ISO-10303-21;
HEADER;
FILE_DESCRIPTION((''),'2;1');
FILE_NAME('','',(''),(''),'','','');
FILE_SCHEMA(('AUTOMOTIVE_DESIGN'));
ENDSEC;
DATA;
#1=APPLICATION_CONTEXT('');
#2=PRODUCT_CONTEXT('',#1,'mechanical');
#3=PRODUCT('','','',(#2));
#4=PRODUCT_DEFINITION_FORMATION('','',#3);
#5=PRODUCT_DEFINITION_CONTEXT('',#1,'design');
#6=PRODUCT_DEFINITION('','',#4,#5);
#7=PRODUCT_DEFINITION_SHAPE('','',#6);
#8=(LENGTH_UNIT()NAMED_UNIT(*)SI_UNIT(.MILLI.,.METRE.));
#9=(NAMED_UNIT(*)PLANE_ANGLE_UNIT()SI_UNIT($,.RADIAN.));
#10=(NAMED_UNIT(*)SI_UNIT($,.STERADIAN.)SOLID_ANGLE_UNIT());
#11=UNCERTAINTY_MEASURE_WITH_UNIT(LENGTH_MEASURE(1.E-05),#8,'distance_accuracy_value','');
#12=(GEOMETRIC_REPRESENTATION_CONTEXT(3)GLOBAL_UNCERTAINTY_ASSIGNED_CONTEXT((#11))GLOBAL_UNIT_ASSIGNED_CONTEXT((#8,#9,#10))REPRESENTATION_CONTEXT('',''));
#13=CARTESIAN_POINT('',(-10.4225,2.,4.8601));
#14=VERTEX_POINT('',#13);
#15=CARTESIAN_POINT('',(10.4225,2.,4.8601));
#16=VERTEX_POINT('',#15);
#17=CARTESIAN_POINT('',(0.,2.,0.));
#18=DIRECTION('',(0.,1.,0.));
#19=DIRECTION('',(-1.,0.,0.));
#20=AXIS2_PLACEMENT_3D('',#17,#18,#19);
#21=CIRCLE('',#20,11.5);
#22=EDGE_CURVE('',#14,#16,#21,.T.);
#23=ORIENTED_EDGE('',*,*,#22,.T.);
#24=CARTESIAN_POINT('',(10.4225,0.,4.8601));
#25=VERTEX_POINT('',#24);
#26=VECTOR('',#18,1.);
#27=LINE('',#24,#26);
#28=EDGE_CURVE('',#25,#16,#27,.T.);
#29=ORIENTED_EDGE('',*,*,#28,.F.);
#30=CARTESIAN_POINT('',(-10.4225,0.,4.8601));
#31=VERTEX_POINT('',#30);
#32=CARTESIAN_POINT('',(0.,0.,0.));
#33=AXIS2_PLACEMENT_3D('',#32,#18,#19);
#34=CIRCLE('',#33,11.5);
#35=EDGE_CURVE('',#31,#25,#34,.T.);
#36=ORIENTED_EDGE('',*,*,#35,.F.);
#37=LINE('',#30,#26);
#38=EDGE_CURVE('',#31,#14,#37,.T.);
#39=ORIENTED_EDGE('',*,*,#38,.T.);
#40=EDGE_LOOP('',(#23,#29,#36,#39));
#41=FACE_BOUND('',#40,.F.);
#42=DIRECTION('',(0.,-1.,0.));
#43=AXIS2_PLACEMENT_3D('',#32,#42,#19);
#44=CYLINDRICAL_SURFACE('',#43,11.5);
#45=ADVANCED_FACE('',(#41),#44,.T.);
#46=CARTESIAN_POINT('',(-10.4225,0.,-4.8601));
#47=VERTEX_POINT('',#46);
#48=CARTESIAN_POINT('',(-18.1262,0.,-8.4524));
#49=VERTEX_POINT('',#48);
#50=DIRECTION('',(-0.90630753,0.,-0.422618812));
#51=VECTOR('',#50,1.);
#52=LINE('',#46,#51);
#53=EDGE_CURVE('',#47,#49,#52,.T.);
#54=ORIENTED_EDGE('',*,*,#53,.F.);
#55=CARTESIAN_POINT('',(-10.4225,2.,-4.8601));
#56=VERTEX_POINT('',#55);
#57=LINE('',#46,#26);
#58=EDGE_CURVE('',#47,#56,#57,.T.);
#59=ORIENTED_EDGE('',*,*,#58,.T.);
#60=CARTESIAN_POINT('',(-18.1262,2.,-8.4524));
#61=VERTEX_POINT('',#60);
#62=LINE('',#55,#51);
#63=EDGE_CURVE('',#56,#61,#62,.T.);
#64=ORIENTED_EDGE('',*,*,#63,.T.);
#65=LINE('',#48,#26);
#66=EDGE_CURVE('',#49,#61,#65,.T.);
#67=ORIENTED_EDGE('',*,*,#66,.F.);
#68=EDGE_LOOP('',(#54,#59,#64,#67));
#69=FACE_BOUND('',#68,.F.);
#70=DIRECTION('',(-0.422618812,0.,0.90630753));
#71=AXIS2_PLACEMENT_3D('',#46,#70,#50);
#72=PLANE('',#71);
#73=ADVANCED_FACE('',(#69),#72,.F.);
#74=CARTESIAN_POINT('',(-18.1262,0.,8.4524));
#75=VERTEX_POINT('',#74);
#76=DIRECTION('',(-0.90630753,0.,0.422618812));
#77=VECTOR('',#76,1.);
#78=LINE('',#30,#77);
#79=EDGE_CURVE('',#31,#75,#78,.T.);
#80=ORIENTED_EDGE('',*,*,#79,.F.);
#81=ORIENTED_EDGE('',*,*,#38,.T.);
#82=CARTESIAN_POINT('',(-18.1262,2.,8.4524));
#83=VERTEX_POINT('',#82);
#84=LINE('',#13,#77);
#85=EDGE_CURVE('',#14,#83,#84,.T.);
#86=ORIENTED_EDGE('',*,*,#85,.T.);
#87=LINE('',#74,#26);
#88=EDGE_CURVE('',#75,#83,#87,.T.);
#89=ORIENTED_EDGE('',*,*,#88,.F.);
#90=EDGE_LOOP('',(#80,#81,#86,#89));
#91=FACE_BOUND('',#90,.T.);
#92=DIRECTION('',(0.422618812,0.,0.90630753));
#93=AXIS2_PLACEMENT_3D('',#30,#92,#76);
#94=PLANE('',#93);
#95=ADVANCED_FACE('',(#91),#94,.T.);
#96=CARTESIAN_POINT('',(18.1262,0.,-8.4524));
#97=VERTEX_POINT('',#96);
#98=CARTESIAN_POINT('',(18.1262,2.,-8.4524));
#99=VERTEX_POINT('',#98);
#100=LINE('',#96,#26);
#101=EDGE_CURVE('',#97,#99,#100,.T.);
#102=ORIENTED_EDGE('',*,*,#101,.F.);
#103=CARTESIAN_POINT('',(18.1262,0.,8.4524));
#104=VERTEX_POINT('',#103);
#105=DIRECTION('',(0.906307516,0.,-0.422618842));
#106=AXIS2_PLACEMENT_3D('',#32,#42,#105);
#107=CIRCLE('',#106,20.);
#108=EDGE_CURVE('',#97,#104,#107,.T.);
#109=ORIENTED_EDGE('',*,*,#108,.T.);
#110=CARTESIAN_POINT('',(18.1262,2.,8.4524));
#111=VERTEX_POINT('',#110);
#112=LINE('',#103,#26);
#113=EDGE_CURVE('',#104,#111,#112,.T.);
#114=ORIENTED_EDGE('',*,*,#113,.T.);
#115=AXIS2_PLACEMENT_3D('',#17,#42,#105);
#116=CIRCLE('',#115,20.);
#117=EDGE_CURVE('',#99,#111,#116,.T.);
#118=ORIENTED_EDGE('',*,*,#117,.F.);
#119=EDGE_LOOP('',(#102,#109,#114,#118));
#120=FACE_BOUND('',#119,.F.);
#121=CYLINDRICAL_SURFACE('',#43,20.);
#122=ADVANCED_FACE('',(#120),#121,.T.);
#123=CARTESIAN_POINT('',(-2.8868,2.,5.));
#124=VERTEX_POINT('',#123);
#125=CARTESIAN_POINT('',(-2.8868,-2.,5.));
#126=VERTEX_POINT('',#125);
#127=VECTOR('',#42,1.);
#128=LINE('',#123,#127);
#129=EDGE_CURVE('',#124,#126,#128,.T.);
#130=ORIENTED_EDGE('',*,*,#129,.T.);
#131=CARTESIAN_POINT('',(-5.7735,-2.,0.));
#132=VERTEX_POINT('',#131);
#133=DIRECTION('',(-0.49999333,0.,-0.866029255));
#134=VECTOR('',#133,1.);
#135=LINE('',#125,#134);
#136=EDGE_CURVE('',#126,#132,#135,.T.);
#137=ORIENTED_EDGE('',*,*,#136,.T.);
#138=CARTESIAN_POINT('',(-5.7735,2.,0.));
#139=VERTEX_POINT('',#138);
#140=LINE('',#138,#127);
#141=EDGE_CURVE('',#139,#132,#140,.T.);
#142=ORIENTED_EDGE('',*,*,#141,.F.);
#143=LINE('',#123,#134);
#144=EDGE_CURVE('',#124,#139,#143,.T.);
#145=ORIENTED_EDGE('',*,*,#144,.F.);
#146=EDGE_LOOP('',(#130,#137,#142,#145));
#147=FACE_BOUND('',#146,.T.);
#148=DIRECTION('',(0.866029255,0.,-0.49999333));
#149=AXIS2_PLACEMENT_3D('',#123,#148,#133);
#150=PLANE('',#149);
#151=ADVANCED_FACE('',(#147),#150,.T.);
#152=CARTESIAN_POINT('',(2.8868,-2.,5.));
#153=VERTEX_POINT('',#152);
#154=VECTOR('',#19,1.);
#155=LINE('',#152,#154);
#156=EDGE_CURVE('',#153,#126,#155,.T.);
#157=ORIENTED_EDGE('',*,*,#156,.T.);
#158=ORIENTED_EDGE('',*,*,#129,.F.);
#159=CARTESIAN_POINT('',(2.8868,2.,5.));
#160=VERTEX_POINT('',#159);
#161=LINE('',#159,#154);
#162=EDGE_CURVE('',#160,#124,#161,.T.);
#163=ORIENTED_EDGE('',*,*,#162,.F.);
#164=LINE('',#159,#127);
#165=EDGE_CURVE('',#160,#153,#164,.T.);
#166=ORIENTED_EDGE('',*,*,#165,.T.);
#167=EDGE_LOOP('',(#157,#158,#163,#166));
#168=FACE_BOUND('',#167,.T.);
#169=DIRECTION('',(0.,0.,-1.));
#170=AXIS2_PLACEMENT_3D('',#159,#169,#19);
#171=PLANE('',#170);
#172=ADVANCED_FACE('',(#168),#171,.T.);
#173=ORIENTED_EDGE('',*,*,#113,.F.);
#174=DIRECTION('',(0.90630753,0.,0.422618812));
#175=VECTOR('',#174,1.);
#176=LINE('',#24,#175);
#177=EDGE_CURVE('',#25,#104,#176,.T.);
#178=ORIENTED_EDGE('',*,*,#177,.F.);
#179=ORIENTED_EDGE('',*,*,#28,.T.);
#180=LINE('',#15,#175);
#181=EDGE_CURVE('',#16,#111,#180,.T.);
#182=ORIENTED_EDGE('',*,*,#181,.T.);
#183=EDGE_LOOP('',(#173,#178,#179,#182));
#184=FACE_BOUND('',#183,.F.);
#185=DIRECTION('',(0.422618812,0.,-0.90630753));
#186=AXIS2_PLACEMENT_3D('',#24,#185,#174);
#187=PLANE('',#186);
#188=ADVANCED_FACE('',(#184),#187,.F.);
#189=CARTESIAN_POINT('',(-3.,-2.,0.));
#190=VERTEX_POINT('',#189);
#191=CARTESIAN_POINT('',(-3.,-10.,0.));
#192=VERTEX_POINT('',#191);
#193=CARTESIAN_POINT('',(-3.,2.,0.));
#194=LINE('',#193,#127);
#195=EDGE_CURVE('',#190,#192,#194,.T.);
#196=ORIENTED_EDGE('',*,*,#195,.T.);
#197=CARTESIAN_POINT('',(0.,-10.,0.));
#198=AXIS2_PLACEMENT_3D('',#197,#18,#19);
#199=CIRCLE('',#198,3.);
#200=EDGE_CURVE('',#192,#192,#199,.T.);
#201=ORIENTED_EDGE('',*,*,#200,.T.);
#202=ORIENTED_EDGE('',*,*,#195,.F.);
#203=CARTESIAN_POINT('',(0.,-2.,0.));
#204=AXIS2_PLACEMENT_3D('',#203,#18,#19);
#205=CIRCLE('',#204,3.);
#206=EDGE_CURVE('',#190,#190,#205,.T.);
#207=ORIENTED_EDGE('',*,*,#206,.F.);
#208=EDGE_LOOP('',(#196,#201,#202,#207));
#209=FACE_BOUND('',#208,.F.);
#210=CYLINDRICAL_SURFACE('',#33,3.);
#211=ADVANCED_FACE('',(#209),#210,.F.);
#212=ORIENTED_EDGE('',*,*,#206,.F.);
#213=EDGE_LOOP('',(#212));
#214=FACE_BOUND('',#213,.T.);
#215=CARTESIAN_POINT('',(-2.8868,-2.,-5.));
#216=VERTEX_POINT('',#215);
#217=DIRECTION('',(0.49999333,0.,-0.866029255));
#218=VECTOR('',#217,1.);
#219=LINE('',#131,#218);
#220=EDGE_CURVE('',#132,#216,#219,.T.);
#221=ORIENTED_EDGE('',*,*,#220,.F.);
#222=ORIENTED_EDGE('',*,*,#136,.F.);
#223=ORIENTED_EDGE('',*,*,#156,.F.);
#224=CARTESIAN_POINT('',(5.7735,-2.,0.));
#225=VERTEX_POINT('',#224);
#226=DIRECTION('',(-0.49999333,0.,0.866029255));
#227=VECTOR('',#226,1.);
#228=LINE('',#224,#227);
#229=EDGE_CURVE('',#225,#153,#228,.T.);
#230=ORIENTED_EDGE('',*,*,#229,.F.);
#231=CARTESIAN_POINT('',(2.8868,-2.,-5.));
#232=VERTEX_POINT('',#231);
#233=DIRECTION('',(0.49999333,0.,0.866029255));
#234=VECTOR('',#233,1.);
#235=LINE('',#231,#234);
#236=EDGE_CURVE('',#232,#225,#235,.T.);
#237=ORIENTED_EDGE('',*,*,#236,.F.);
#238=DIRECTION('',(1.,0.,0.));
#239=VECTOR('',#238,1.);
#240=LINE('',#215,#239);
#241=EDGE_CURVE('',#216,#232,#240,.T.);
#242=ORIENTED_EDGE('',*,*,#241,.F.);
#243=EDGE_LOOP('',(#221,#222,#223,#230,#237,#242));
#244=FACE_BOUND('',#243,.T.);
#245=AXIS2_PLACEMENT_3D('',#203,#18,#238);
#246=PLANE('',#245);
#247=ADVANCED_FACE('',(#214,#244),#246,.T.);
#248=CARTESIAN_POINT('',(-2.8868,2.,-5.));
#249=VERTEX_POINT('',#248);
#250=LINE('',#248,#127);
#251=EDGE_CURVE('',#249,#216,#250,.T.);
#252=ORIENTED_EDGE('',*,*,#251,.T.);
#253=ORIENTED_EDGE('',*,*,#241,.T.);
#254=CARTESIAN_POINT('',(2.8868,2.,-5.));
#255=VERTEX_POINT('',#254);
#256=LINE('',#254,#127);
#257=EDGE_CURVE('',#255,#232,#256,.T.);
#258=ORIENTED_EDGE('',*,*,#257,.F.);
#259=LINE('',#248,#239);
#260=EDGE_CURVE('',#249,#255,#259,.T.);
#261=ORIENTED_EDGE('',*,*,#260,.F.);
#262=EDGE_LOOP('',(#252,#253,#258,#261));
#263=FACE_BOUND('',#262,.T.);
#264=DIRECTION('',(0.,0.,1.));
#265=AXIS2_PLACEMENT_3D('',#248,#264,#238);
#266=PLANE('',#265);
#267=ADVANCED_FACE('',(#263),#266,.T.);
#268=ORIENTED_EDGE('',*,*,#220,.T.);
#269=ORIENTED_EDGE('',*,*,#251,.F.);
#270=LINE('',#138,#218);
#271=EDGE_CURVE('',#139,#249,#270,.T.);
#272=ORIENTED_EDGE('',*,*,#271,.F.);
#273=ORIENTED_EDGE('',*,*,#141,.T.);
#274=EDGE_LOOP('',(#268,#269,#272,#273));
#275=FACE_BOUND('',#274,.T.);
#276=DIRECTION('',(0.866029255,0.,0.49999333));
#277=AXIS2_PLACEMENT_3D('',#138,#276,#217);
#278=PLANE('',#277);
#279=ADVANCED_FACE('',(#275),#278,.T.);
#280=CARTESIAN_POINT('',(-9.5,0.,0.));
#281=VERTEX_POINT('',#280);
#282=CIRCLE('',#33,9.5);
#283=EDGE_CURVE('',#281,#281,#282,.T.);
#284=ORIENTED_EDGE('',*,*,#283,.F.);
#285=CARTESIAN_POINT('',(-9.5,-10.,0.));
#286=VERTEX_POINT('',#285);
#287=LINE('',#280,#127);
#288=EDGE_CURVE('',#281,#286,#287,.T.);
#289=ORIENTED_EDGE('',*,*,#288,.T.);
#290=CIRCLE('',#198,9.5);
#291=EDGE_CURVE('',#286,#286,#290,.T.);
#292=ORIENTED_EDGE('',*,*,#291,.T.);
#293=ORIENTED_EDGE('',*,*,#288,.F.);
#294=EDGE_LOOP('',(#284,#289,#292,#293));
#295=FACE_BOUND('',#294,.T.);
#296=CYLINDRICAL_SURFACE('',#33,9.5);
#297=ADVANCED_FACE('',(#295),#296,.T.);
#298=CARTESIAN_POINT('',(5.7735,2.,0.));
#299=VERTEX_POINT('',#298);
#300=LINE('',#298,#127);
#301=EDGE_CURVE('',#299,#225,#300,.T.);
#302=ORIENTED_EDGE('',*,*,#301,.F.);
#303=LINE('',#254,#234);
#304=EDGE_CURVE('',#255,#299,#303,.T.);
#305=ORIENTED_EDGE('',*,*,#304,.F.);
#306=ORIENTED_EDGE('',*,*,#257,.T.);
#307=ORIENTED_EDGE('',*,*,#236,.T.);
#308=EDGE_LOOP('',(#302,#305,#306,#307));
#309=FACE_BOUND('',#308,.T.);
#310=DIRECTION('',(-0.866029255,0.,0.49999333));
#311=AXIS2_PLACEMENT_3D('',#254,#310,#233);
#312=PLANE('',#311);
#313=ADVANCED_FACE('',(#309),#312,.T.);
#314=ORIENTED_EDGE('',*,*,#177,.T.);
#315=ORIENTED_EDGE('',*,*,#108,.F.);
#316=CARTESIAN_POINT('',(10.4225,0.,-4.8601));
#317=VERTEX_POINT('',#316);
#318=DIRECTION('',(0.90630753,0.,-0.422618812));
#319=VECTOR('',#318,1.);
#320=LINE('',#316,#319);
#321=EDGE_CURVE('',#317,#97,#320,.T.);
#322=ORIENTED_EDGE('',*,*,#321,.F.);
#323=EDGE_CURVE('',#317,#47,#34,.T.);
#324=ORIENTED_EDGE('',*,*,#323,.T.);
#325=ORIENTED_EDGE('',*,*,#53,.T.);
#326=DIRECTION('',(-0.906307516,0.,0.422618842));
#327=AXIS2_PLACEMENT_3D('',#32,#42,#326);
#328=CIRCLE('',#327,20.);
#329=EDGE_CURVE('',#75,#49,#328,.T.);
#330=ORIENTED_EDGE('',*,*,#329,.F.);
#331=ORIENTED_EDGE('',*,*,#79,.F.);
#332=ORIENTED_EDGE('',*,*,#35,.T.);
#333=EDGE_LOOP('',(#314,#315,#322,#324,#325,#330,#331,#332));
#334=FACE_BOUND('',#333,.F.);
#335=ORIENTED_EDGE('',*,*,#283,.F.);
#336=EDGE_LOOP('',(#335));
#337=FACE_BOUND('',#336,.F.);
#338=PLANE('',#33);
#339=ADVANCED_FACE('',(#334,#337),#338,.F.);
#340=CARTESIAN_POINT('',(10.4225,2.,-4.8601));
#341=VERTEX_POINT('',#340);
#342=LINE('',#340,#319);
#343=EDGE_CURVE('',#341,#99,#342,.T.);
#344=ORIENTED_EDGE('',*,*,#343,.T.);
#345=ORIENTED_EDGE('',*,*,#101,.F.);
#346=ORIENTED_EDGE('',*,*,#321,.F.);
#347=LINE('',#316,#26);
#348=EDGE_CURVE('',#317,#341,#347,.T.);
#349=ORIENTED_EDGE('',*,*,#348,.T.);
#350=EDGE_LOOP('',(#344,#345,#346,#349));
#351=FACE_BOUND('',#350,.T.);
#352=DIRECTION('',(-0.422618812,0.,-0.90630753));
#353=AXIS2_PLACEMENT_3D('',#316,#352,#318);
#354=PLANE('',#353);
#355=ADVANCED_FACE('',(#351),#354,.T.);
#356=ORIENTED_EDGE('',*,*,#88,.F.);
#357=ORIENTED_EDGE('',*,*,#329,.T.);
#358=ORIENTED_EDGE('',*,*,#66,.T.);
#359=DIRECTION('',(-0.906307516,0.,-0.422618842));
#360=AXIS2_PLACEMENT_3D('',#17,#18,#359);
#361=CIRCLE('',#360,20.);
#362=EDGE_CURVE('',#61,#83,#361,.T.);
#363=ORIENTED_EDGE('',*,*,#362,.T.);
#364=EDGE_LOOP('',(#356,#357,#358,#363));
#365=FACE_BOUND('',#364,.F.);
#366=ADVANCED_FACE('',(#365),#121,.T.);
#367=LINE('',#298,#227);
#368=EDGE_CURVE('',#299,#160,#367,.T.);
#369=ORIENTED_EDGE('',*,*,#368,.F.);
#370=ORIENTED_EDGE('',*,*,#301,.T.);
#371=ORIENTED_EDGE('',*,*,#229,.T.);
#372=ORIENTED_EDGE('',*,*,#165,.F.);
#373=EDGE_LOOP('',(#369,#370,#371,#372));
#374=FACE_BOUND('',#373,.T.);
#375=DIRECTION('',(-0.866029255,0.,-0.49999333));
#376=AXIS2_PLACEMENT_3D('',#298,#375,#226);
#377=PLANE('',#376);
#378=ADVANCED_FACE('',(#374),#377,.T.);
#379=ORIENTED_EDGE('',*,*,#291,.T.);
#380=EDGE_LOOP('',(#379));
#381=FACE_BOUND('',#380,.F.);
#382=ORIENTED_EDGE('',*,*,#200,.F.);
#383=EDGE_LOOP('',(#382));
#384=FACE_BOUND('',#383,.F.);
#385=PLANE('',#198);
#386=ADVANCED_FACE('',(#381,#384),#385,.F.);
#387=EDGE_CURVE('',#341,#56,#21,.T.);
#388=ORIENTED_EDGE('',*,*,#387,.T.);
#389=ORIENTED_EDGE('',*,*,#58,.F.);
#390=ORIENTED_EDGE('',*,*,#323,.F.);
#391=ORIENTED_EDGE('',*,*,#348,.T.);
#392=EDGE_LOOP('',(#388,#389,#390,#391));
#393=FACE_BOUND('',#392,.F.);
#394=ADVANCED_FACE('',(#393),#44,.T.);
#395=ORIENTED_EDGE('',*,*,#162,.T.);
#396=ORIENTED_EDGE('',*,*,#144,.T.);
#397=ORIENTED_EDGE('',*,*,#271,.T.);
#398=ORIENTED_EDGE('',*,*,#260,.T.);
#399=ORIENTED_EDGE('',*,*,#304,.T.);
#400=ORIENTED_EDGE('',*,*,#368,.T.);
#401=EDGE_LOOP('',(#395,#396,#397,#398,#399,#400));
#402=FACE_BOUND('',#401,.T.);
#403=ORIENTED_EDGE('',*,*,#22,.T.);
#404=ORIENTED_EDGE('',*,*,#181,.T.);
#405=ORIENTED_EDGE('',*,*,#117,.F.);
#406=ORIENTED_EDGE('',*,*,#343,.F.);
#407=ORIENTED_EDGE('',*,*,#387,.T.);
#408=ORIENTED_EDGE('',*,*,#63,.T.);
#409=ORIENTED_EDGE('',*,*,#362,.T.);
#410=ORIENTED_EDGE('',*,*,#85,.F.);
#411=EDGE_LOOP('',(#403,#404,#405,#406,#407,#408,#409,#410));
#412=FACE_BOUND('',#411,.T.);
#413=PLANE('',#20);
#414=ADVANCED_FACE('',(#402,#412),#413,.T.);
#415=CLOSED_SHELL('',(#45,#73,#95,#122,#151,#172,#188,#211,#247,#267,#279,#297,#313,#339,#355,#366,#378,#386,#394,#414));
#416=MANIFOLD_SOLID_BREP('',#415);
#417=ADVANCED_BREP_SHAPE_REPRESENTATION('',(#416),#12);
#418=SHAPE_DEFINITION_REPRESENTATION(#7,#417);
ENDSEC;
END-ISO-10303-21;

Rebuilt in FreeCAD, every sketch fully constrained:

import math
import FreeCAD as App
import Part
import Sketcher
from FreeCAD import Vector
Q = App.Units.Quantity


def add_polygon(sketch, points):
    """Adds a closed chain of lines whose ends are joined by coincident constraints."""
    first, n = sketch.GeometryCount, len(points)
    for a, b in zip(points, points[1:] + points[:1]):
        sketch.addGeometry(Part.LineSegment(App.Vector(*a, 0), App.Vector(*b, 0)), False)
    for i in range(n):
        sketch.addConstraint(Sketcher.Constraint("Coincident", first + i, 2, first + (i + 1) % n, 1))

doc = App.newDocument("Part")
body = doc.addObject("PartDesign::Body", "Body")

# Sketch on XZ plane
sketch1 = doc.addObject("Sketcher::SketchObject", "Sketch")
body.addObject(sketch1)
sketch1.AttachmentSupport = (doc.XZ_Plane, [""])
sketch1.MapMode = "FlatFace"
sketch1.addGeometry([
    Part.ArcOfCircle(Part.Circle(Vector(0, 0, 0), Vector(0, 0, 1), 11.5), math.radians(25), math.radians(155)),  # 0
    Part.LineSegment(Vector(10.4, 4.9, 0), Vector(18.1, 8.5, 0)),  # 1
    Part.ArcOfCircle(Part.Circle(Vector(0, 0, 0), Vector(0, 0, 1), 20), math.radians(-25), math.radians(25)),  # 2
    Part.LineSegment(Vector(18.1, -8.5, 0), Vector(10.4, -4.9, 0)),  # 3
    Part.ArcOfCircle(Part.Circle(Vector(0, 0, 0), Vector(0, 0, 1), 11.5), math.radians(-155), math.radians(-25)),  # 4
    Part.LineSegment(Vector(-10.4, -4.9, 0), Vector(-18.1, -8.5, 0)),  # 5
    Part.ArcOfCircle(Part.Circle(Vector(0, 0, 0), Vector(0, 0, 1), 20), math.radians(155), math.radians(205)),  # 6
    Part.LineSegment(Vector(-18.1, 8.5, 0), Vector(-10.4, 4.9, 0)),  # 7
    Part.Circle(Vector(0, 0, 0), Vector(0, 0, 1), 3),  # 8
], False)
sketch1.addConstraint([
    Sketcher.Constraint("Coincident", 0, 1, 1, 1),
    Sketcher.Constraint("Coincident", 1, 2, 2, 2),
    Sketcher.Constraint("Coincident", 2, 1, 3, 1),
    Sketcher.Constraint("Coincident", 3, 2, 4, 2),
    Sketcher.Constraint("Coincident", 4, 1, 5, 1),
    Sketcher.Constraint("Coincident", 5, 2, 6, 2),
    Sketcher.Constraint("Coincident", 6, 1, 7, 1),
    Sketcher.Constraint("Coincident", 7, 2, 0, 2),
    Sketcher.Constraint("Coincident", 0, 3, -1, 1),
    Sketcher.Constraint("Coincident", 2, 3, -1, 1),
    Sketcher.Constraint("Coincident", 4, 3, -1, 1),
    Sketcher.Constraint("Coincident", 6, 3, -1, 1),
    Sketcher.Constraint("Coincident", 8, 3, -1, 1),
    Sketcher.Constraint("Equal", 0, 4),
    Sketcher.Constraint("Equal", 2, 6),
    Sketcher.Constraint("Parallel", 1, 5),
    Sketcher.Constraint("Parallel", 3, 7),
    Sketcher.Constraint("Horizontal", 3, 2, 4, 1),
    Sketcher.Constraint("Horizontal", 2, 1, 5, 2),
    Sketcher.Constraint("Horizontal", 1, 2, 6, 1),
    Sketcher.Constraint("Vertical", 1, 2, 2, 1),
    Sketcher.Constraint("Diameter", 8, Q("6 mm")),
    Sketcher.Constraint("Radius", 2, Q("20 mm")),
    Sketcher.Constraint("Radius", 0, Q("11.5 mm")),
    Sketcher.Constraint("Angle", 1, Q("25 deg")),
    Sketcher.Constraint("DistanceY", -1, 1, 0, 1, Q("4.86 mm")),
])
pad1 = doc.addObject("PartDesign::Pad", "Pad")
body.addObject(pad1)
pad1.Profile = sketch1
pad1.Length = 2
pad1.Reversed = True

# Sketch on XZ plane
sketch2 = doc.addObject("Sketcher::SketchObject", "Sketch001")
body.addObject(sketch2)
sketch2.AttachmentSupport = (doc.XZ_Plane, [""])
sketch2.MapMode = "FlatFace"
sketch2.addGeometry([
    Part.Circle(Vector(0, 0, 0), Vector(0, 0, 1), 9.5),
    Part.Circle(Vector(0, 0, 0), Vector(0, 0, 1), 3),
], False)
sketch2.addConstraint([
    Sketcher.Constraint("Coincident", 0, 3, -1, 1),
    Sketcher.Constraint("Coincident", 1, 3, -1, 1),
    Sketcher.Constraint("Diameter", 0, Q("19 mm")),
    Sketcher.Constraint("Diameter", 1, Q("6 mm")),
])
pad2 = doc.addObject("PartDesign::Pad", "Pad001")
body.addObject(pad2)
pad2.Profile = sketch2
pad2.Length = 10

# Sketch on XZ plane
sketch3 = doc.addObject("Sketcher::SketchObject", "Sketch002")
body.addObject(sketch3)
sketch3.AttachmentSupport = (doc.XZ_Plane, [""])
sketch3.MapMode = "FlatFace"
sketch3.AttachmentOffset = App.Placement(Vector(0, 0, -2), App.Rotation())
add_polygon(sketch3, [(2.9, -5), (-2.9, -5), (-5.8, 0), (-2.9, 5), (2.9, 5), (5.8, 0)])  # lines 0-5
sketch3.addGeometry(Part.Circle(Vector(0, 0, 0), Vector(0, 0, 1), 3), False)  # 6
sketch3.addConstraint([
    Sketcher.Constraint("Horizontal", 0),
    Sketcher.Constraint("Horizontal", 3),
    Sketcher.Constraint("Coincident", 6, 3, -1, 1),
    Sketcher.Constraint("Symmetric", 0, 2, 3, 2, -1, 1),
    Sketcher.Constraint("Symmetric", 1, 2, 4, 2, -1, 1),
    Sketcher.Constraint("PointOnObject", 1, 2, -1),
    Sketcher.Constraint("Parallel", 2, 5),
    Sketcher.Constraint("Vertical", 0, 2, 2, 2),
    Sketcher.Constraint("Diameter", 6, Q("6 mm")),
    Sketcher.Constraint("DistanceY", 0, 2, 2, 2, Q("10 mm")),
    Sketcher.Constraint("Angle", 1, Q("119.9996 deg")),
    Sketcher.Constraint("DistanceX", 0, 2, 0, 1, Q("5.7736 mm")),
])
pocket1 = doc.addObject("PartDesign::Pocket", "Pocket")
body.addObject(pocket1)
pocket1.Profile = sketch3
pocket1.Length = 4
pocket1.Reversed = True

doc.recompute()
